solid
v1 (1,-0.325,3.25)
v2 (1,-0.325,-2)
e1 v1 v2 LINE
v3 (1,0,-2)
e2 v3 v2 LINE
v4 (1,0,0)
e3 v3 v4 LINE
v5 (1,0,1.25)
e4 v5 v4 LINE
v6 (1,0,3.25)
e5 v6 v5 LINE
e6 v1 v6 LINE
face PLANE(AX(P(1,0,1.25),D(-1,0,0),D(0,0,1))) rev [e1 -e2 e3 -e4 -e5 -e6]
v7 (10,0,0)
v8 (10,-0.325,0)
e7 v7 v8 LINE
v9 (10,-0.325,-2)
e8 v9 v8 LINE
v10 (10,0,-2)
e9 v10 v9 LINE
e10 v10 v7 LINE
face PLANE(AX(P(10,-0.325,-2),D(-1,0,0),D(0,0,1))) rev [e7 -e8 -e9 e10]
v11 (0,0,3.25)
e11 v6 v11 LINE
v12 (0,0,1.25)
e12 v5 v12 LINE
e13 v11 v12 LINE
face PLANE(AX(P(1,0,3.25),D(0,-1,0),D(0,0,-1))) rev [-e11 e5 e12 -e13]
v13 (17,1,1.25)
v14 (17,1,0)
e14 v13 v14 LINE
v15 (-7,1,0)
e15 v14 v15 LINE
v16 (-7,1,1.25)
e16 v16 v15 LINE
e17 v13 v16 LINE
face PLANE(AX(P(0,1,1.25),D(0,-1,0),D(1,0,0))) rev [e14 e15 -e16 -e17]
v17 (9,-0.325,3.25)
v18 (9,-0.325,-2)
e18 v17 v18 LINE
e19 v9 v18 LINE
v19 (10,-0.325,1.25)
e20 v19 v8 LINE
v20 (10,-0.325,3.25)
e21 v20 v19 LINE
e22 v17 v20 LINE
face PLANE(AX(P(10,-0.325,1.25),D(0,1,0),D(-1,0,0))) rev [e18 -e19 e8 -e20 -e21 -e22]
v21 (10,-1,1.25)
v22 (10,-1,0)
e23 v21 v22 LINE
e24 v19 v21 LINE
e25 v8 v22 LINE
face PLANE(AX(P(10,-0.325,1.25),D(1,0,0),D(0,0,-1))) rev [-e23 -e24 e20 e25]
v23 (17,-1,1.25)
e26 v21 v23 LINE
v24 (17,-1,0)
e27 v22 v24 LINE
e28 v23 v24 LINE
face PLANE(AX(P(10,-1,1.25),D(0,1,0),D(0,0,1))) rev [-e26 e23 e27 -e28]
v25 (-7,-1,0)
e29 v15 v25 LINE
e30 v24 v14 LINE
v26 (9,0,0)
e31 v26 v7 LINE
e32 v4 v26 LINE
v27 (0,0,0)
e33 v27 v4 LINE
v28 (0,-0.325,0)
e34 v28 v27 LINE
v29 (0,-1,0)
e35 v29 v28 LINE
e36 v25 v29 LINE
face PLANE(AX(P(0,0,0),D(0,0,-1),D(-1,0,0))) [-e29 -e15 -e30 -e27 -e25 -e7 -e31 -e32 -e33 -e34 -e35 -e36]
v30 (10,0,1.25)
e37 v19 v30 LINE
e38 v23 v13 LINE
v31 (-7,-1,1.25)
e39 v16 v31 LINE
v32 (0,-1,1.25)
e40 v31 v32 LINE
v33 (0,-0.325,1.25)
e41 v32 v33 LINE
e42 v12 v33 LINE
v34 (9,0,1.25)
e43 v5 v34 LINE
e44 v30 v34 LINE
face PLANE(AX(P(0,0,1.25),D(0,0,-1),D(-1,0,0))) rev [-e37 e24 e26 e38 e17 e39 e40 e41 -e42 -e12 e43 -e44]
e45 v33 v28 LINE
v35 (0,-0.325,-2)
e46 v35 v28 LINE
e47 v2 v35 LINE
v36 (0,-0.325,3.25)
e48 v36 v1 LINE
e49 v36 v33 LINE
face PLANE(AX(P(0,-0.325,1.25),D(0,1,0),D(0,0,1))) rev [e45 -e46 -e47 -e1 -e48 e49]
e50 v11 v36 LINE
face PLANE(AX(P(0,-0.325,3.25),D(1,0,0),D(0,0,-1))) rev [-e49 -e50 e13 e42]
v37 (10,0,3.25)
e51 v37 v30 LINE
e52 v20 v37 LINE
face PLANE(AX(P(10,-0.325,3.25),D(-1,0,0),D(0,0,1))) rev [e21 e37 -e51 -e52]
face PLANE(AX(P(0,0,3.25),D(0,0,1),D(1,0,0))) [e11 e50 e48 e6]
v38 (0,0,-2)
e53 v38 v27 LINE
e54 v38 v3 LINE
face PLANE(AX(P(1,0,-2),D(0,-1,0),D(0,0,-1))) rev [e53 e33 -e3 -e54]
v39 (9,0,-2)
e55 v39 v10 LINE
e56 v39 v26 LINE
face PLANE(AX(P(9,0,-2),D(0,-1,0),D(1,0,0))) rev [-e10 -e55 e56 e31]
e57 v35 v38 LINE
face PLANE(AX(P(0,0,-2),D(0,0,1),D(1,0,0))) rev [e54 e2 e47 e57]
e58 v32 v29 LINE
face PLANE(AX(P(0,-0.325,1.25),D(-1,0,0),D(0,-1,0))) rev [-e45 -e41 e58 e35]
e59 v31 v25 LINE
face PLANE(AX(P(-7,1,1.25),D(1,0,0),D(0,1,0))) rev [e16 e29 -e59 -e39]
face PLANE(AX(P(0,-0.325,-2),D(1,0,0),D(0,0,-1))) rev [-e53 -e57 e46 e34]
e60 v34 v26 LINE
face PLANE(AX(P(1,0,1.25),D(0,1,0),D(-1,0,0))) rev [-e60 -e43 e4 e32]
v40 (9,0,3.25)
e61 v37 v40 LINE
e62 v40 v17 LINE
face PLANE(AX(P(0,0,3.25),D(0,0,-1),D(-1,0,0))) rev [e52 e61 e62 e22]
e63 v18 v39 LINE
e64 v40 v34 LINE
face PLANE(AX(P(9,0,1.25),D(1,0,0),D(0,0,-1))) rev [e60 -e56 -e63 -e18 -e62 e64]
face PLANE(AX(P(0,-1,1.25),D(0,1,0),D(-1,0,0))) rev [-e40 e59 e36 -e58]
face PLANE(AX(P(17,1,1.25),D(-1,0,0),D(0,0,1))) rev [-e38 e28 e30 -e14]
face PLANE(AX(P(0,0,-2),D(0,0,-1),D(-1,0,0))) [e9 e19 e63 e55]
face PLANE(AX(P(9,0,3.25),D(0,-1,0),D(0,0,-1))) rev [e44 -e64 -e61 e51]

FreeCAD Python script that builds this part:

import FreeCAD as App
import Part
import Sketcher
Q = App.Units.Quantity

doc = App.newDocument("Part")
body = doc.addObject("PartDesign::Body", "Body")

# Sketch on XY plane
sketch1 = body.newObject("Sketcher::SketchObject", "Sketch")
sketch1.AttachmentSupport = (doc.getObject("XY_Plane"), [""])
sketch1.MapMode = "FlatFace"
sketch1.addGeometry(Part.LineSegment(App.Vector(1, 0, 0), App.Vector(9, 0, 0)), False)
sketch1.addGeometry(Part.LineSegment(App.Vector(9, 0, 0), App.Vector(9, -0.33, 0)), False)
sketch1.addGeometry(Part.LineSegment(App.Vector(9, -0.33, 0), App.Vector(10, -0.33, 0)), False)
sketch1.addGeometry(Part.LineSegment(App.Vector(10, -0.33, 0), App.Vector(10, -1, 0)), False)
sketch1.addGeometry(Part.LineSegment(App.Vector(10, -1, 0), App.Vector(17, -1, 0)), False)
sketch1.addGeometry(Part.LineSegment(App.Vector(17, -1, 0), App.Vector(17, 1, 0)), False)
sketch1.addGeometry(Part.LineSegment(App.Vector(17, 1, 0), App.Vector(-7, 1, 0)), False)
sketch1.addGeometry(Part.LineSegment(App.Vector(-7, 1, 0), App.Vector(-7, -1, 0)), False)
sketch1.addGeometry(Part.LineSegment(App.Vector(-7, -1, 0), App.Vector(0, -1, 0)), False)
sketch1.addGeometry(Part.LineSegment(App.Vector(0, -1, 0), App.Vector(0, -0.33, 0)), False)
sketch1.addGeometry(Part.LineSegment(App.Vector(0, -0.33, 0), App.Vector(1, -0.33, 0)), False)
sketch1.addGeometry(Part.LineSegment(App.Vector(1, -0.33, 0), App.Vector(1, 0, 0)), False)
sketch1.addConstraint(Sketcher.Constraint("Coincident", 0, 2, 1, 1))
sketch1.addConstraint(Sketcher.Constraint("Coincident", 1, 2, 2, 1))
sketch1.addConstraint(Sketcher.Constraint("Coincident", 2, 2, 3, 1))
sketch1.addConstraint(Sketcher.Constraint("Coincident", 3, 2, 4, 1))
sketch1.addConstraint(Sketcher.Constraint("Coincident", 4, 2, 5, 1))
sketch1.addConstraint(Sketcher.Constraint("Coincident", 5, 2, 6, 1))
sketch1.addConstraint(Sketcher.Constraint("Coincident", 6, 2, 7, 1))
sketch1.addConstraint(Sketcher.Constraint("Coincident", 7, 2, 8, 1))
sketch1.addConstraint(Sketcher.Constraint("Coincident", 8, 2, 9, 1))
sketch1.addConstraint(Sketcher.Constraint("Coincident", 9, 2, 10, 1))
sketch1.addConstraint(Sketcher.Constraint("Coincident", 10, 2, 11, 1))
sketch1.addConstraint(Sketcher.Constraint("Coincident", 11, 2, 0, 1))
sketch1.addConstraint(Sketcher.Constraint("Horizontal", 0))
sketch1.addConstraint(Sketcher.Constraint("Vertical", 1))
sketch1.addConstraint(Sketcher.Constraint("Horizontal", 2))
sketch1.addConstraint(Sketcher.Constraint("Vertical", 3))
sketch1.addConstraint(Sketcher.Constraint("Horizontal", 4))
sketch1.addConstraint(Sketcher.Constraint("Vertical", 5))
sketch1.addConstraint(Sketcher.Constraint("Horizontal", 6))
sketch1.addConstraint(Sketcher.Constraint("Vertical", 7))
sketch1.addConstraint(Sketcher.Constraint("Horizontal", 8))
sketch1.addConstraint(Sketcher.Constraint("Vertical", 9))
sketch1.addConstraint(Sketcher.Constraint("Horizontal", 10))
sketch1.addConstraint(Sketcher.Constraint("Vertical", 11))
sketch1.addConstraint(Sketcher.Constraint("PointOnObject", 0, 2, -1))
sketch1.addConstraint(Sketcher.Constraint("PointOnObject", 8, 2, -2))
sketch1.addConstraint(Sketcher.Constraint("Horizontal", 4, 2, 7, 2))
sketch1.addConstraint(Sketcher.Constraint("Horizontal", 2, 2, 9, 2))
sketch1.addConstraint(Sketcher.Constraint("Equal", 4, 8))
sketch1.addConstraint(Sketcher.Constraint("Equal", 2, 10))
sketch1.addConstraint(Sketcher.Constraint("DistanceX", 0, 1, 0, 2, Q("8 mm")))
sketch1.addConstraint(Sketcher.Constraint("DistanceX", 2, 1, 2, 2, Q("1 mm")))
sketch1.addConstraint(Sketcher.Constraint("DistanceX", 4, 1, 4, 2, Q("7 mm")))
sketch1.addConstraint(Sketcher.Constraint("DistanceY", 5, 1, 5, 2, Q("2 mm")))
sketch1.addConstraint(Sketcher.Constraint("DistanceY", 3, 2, -1, 1, Q("1 mm")))
sketch1.addConstraint(Sketcher.Constraint("DistanceY", 1, 2, 1, 1, Q("0.325 mm")))
pad1 = body.newObject("PartDesign::Pad", "Pad")
pad1.Profile = sketch1
pad1.Length = 1.25

# Sketch on XY plane
sketch2 = body.newObject("Sketcher::SketchObject", "Sketch001")
sketch2.AttachmentSupport = (doc.getObject("XY_Plane"), [""])
sketch2.MapMode = "FlatFace"
sketch2.AttachmentOffset = App.Placement(App.Vector(0, 0, 1.25), App.Rotation())
sketch2.addGeometry(Part.LineSegment(App.Vector(0, 0, 0), App.Vector(0, -0.33, 0)), False)
sketch2.addGeometry(Part.LineSegment(App.Vector(0, -0.33, 0), App.Vector(1, -0.33, 0)), False)
sketch2.addGeometry(Part.LineSegment(App.Vector(1, -0.33, 0), App.Vector(1, 0, 0)), False)
sketch2.addGeometry(Part.LineSegment(App.Vector(1, 0, 0), App.Vector(0, 0, 0)), False)
sketch2.addGeometry(Part.LineSegment(App.Vector(9, 0, 0), App.Vector(9, -0.33, 0)), False)
sketch2.addGeometry(Part.LineSegment(App.Vector(9, -0.33, 0), App.Vector(10, -0.33, 0)), False)
sketch2.addGeometry(Part.LineSegment(App.Vector(10, -0.33, 0), App.Vector(10, 0, 0)), False)
sketch2.addGeometry(Part.LineSegment(App.Vector(10, 0, 0), App.Vector(9, 0, 0)), False)
sketch2.addConstraint(Sketcher.Constraint("Coincident", 0, 2, 1, 1))
sketch2.addConstraint(Sketcher.Constraint("Coincident", 1, 2, 2, 1))
sketch2.addConstraint(Sketcher.Constraint("Coincident", 2, 2, 3, 1))
sketch2.addConstraint(Sketcher.Constraint("Coincident", 3, 2, 0, 1))
sketch2.addConstraint(Sketcher.Constraint("Coincident", 4, 2, 5, 1))
sketch2.addConstraint(Sketcher.Constraint("Coincident", 5, 2, 6, 1))
sketch2.addConstraint(Sketcher.Constraint("Coincident", 6, 2, 7, 1))
sketch2.addConstraint(Sketcher.Constraint("Coincident", 7, 2, 4, 1))
sketch2.addConstraint(Sketcher.Constraint("Vertical", 0))
sketch2.addConstraint(Sketcher.Constraint("Horizontal", 1))
sketch2.addConstraint(Sketcher.Constraint("Vertical", 2))
sketch2.addConstraint(Sketcher.Constraint("Horizontal", 3))
sketch2.addConstraint(Sketcher.Constraint("Vertical", 4))
sketch2.addConstraint(Sketcher.Constraint("Horizontal", 5))
sketch2.addConstraint(Sketcher.Constraint("Vertical", 6))
sketch2.addConstraint(Sketcher.Constraint("Horizontal", 7))
sketch2.addConstraint(Sketcher.Constraint("Coincident", 3, 2, -1, 1))
sketch2.addConstraint(Sketcher.Constraint("PointOnObject", 6, 2, -1))
sketch2.addConstraint(Sketcher.Constraint("Horizontal", 1, 2, 4, 2))
sketch2.addConstraint(Sketcher.Constraint("Equal", 3, 5))
sketch2.addConstraint(Sketcher.Constraint("DistanceX", 1, 1, 1, 2, Q("1 mm")))
sketch2.addConstraint(Sketcher.Constraint("DistanceX", -1, 1, 4, 2, Q("9 mm")))
sketch2.addConstraint(Sketcher.Constraint("DistanceY", 0, 2, 0, 1, Q("0.325 mm")))
pad2 = body.newObject("PartDesign::Pad", "Pad001")
pad2.Profile = sketch2
pad2.Length = 2

# Sketch on XY plane
sketch3 = body.newObject("Sketcher::SketchObject", "Sketch002")
sketch3.AttachmentSupport = (doc.getObject("XY_Plane"), [""])
sketch3.MapMode = "FlatFace"
sketch3.addGeometry(Part.LineSegment(App.Vector(10, 0, 0), App.Vector(10, -0.33, 0)), False)
sketch3.addGeometry(Part.LineSegment(App.Vector(10, -0.33, 0), App.Vector(9, -0.33, 0)), False)
sketch3.addGeometry(Part.LineSegment(App.Vector(9, -0.33, 0), App.Vector(9, 0, 0)), False)
sketch3.addGeometry(Part.LineSegment(App.Vector(9, 0, 0), App.Vector(10, 0, 0)), False)
sketch3.addGeometry(Part.LineSegment(App.Vector(1, 0, 0), App.Vector(1, -0.33, 0)), False)
sketch3.addGeometry(Part.LineSegment(App.Vector(1, -0.33, 0), App.Vector(0, -0.33, 0)), False)
sketch3.addGeometry(Part.LineSegment(App.Vector(0, -0.33, 0), App.Vector(0, 0, 0)), False)
sketch3.addGeometry(Part.LineSegment(App.Vector(0, 0, 0), App.Vector(1, 0, 0)), False)
sketch3.addConstraint(Sketcher.Constraint("Coincident", 0, 2, 1, 1))
sketch3.addConstraint(Sketcher.Constraint("Coincident", 1, 2, 2, 1))
sketch3.addConstraint(Sketcher.Constraint("Coincident", 2, 2, 3, 1))
sketch3.addConstraint(Sketcher.Constraint("Coincident", 3, 2, 0, 1))
sketch3.addConstraint(Sketcher.Constraint("Coincident", 4, 2, 5, 1))
sketch3.addConstraint(Sketcher.Constraint("Coincident", 5, 2, 6, 1))
sketch3.addConstraint(Sketcher.Constraint("Coincident", 6, 2, 7, 1))
sketch3.addConstraint(Sketcher.Constraint("Coincident", 7, 2, 4, 1))
sketch3.addConstraint(Sketcher.Constraint("Vertical", 0))
sketch3.addConstraint(Sketcher.Constraint("Horizontal", 1))
sketch3.addConstraint(Sketcher.Constraint("Vertical", 2))
sketch3.addConstraint(Sketcher.Constraint("Horizontal", 3))
sketch3.addConstraint(Sketcher.Constraint("Vertical", 4))
sketch3.addConstraint(Sketcher.Constraint("Horizontal", 5))
sketch3.addConstraint(Sketcher.Constraint("Vertical", 6))
sketch3.addConstraint(Sketcher.Constraint("Horizontal", 7))
sketch3.addConstraint(Sketcher.Constraint("Coincident", 6, 2, -1, 1))
sketch3.addConstraint(Sketcher.Constraint("PointOnObject", 2, 2, -1))
sketch3.addConstraint(Sketcher.Constraint("Horizontal", 1, 2, 4, 2))
sketch3.addConstraint(Sketcher.Constraint("Equal", 3, 5))
sketch3.addConstraint(Sketcher.Constraint("DistanceX", 1, 2, 1, 1, Q("1 mm")))
sketch3.addConstraint(Sketcher.Constraint("DistanceX", -1, 1, 0, 2, Q("10 mm")))
sketch3.addConstraint(Sketcher.Constraint("DistanceY", 0, 2, 0, 1, Q("0.325 mm")))
pad3 = body.newObject("PartDesign::Pad", "Pad002")
pad3.Profile = sketch3
pad3.Length = 2
pad3.Reversed = True

doc.recompute()
